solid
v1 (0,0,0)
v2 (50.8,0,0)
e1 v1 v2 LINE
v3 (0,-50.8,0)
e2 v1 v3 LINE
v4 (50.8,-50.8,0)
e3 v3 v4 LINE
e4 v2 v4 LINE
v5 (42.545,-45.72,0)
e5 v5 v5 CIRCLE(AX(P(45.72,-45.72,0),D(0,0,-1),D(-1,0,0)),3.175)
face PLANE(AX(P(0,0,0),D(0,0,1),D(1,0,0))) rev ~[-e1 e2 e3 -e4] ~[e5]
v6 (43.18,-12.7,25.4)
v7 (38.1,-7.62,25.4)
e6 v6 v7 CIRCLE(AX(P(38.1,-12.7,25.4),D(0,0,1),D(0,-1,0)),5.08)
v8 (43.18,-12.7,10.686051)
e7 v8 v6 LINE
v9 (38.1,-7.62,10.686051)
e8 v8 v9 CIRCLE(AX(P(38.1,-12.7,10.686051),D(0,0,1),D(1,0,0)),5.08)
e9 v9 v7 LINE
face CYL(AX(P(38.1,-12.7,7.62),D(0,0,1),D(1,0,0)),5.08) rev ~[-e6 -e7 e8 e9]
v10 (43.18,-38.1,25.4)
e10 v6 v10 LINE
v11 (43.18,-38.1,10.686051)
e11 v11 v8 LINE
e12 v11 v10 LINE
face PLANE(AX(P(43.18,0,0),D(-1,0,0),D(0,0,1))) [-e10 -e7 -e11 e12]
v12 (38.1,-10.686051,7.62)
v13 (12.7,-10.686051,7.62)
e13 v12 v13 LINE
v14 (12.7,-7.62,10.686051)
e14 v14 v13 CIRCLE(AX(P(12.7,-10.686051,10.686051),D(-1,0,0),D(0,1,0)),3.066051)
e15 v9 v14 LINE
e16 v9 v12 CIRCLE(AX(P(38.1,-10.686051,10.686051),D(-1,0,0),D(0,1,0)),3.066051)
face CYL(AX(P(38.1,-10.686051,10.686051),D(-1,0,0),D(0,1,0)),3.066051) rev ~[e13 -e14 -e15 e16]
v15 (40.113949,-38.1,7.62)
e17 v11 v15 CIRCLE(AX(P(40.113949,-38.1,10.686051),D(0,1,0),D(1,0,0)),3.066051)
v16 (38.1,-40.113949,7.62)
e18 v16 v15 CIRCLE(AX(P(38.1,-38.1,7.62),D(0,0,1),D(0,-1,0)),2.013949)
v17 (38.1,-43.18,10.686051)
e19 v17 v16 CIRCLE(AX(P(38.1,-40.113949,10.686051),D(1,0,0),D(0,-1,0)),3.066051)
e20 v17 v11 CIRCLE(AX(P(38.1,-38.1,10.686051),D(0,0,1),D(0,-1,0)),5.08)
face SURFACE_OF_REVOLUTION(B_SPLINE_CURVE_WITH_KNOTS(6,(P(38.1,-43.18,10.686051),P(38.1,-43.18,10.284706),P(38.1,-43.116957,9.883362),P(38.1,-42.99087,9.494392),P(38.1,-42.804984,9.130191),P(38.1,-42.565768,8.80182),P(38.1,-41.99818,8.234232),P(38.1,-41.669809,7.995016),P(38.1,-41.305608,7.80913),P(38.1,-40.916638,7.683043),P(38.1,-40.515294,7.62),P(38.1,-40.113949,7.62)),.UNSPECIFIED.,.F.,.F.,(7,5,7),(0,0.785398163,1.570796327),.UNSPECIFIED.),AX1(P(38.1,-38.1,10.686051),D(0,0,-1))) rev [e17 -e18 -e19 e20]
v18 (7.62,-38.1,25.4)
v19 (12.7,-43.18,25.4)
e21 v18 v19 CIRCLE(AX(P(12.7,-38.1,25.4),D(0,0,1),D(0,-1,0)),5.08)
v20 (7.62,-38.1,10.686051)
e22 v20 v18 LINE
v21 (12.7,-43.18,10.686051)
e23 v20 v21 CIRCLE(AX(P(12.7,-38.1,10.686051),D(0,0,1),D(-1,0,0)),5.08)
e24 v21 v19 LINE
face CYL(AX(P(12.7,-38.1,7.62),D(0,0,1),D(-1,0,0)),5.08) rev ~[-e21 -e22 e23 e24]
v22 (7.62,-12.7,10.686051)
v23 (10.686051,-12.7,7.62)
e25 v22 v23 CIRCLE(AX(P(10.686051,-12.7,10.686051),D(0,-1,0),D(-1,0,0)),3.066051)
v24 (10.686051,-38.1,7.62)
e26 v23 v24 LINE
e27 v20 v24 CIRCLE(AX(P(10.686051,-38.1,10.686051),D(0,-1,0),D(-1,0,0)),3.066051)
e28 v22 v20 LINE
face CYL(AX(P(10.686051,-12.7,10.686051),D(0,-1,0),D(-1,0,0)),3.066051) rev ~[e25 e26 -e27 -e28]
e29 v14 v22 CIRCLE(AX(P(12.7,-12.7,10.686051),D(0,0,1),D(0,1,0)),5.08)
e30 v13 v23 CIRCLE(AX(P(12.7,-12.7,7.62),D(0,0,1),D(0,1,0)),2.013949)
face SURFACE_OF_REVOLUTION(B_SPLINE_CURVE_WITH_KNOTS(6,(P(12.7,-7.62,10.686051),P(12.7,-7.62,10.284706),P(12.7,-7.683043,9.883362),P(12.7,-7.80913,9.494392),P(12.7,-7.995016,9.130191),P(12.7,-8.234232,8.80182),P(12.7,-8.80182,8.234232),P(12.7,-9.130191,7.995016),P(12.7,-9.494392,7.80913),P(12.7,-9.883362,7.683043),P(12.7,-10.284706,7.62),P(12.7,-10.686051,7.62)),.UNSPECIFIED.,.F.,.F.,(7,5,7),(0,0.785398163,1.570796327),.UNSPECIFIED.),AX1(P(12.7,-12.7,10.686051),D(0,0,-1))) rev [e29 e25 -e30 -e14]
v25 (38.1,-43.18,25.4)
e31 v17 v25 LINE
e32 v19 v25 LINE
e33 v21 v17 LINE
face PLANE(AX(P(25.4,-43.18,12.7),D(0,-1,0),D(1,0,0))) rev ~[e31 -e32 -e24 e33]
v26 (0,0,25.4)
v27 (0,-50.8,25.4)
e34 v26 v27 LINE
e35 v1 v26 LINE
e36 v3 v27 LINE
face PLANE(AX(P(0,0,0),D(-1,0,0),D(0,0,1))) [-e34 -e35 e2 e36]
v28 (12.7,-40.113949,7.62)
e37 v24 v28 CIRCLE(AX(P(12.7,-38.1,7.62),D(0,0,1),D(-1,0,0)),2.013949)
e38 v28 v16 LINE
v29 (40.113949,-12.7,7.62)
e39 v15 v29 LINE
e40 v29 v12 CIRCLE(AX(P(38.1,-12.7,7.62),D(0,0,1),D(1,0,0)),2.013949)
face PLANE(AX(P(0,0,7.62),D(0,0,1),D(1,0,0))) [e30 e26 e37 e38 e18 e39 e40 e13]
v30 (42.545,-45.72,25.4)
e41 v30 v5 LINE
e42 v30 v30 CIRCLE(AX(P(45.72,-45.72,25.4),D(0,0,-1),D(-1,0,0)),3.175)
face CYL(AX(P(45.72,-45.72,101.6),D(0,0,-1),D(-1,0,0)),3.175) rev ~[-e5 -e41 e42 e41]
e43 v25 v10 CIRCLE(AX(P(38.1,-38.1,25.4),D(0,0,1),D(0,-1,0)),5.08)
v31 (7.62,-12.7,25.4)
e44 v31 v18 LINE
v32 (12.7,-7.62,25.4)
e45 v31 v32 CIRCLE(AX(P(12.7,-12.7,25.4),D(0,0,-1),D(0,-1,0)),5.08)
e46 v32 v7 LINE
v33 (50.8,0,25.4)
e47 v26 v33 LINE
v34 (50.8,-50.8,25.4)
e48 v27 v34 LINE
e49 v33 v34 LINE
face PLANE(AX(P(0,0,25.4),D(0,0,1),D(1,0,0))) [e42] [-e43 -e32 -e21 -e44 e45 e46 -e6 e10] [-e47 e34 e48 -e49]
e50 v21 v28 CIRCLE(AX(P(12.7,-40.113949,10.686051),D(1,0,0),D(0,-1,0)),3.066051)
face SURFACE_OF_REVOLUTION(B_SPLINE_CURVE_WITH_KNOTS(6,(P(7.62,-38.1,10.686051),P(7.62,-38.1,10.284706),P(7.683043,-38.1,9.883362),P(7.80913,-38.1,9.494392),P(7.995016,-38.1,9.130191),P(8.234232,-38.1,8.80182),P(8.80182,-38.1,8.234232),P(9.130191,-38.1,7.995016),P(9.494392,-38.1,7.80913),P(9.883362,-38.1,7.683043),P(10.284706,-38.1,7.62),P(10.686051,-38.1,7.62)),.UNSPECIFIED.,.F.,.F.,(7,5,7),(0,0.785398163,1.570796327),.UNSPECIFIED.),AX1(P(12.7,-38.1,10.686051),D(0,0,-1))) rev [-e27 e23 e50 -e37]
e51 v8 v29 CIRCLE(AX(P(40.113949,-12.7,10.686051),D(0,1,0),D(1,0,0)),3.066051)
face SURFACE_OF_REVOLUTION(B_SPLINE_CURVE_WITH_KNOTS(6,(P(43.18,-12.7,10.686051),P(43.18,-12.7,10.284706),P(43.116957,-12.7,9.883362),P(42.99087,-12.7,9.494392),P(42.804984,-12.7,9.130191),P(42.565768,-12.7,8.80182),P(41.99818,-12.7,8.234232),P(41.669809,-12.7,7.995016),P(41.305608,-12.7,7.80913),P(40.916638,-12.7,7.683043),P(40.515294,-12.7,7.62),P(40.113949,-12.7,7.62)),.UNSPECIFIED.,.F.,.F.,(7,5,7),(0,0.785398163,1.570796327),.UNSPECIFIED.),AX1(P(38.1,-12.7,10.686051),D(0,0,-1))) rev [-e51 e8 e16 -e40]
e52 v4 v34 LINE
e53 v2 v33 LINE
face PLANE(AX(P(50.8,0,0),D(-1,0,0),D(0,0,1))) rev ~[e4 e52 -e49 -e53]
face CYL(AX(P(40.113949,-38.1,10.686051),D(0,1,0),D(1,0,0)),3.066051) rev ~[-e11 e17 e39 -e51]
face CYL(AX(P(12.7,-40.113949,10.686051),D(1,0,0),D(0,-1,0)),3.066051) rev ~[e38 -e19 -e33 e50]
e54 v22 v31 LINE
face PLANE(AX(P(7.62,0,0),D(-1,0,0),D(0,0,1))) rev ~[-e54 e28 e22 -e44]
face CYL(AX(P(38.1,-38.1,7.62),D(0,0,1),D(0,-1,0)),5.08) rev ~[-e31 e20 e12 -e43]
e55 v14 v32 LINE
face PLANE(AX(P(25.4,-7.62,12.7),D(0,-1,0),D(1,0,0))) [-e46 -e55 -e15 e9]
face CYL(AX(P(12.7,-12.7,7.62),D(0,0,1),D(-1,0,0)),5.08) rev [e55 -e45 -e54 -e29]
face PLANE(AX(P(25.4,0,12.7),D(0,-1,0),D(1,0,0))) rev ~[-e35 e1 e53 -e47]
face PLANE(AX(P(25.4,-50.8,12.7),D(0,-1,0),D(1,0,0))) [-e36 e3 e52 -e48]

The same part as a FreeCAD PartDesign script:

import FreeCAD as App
import Part
import Sketcher
from FreeCAD import Vector
Q = App.Units.Quantity


def edges_at(feature, points):
    """Names of the edges that pass closest to the given points."""
    edges = feature.Shape.Edges
    near = lambda p: min(range(len(edges)), key=lambda i: edges[i].distToShape(Part.Vertex(*p))[0])
    return sorted({f"Edge{near(p) + 1}" for p in points})


def faces_at(feature, points):
    """Names of the faces that lie closest to the given points."""
    faces = feature.Shape.Faces
    near = lambda p: min(range(len(faces)), key=lambda i: faces[i].distToShape(Part.Vertex(*p))[0])
    return sorted({f"Face{near(p) + 1}" for p in points})

doc = App.newDocument("Part")
body = doc.addObject("PartDesign::Body", "Body")

# Sketch on XZ plane
sketch1 = body.newObject("Sketcher::SketchObject", "Sketch")
sketch1.AttachmentSupport = (doc.getObject("XZ_Plane"), [""])
sketch1.MapMode = "FlatFace"
sketch1.addGeometry([
    Part.LineSegment(Vector(0, 25.4, 0), Vector(0, 0, 0)),
    Part.LineSegment(Vector(0, 0, 0), Vector(50.8, 0, 0)),
    Part.LineSegment(Vector(50.8, 0, 0), Vector(50.8, 25.4, 0)),
    Part.LineSegment(Vector(50.8, 25.4, 0), Vector(0, 25.4, 0)),
], False)
sketch1.addConstraint([
    Sketcher.Constraint("Coincident", 0, 2, 1, 1),
    Sketcher.Constraint("Coincident", 1, 2, 2, 1),
    Sketcher.Constraint("Coincident", 2, 2, 3, 1),
    Sketcher.Constraint("Coincident", 3, 2, 0, 1),
    Sketcher.Constraint("Vertical", 0),
    Sketcher.Constraint("Horizontal", 1),
    Sketcher.Constraint("Vertical", 2),
    Sketcher.Constraint("Horizontal", 3),
    Sketcher.Constraint("Coincident", 0, 2, -1, 1),
    Sketcher.Constraint("DistanceX", 1, 1, 1, 2, Q("2 in")),
    Sketcher.Constraint("DistanceY", 0, 2, 0, 1, Q("1 in")),
])
pad1 = body.newObject("PartDesign::Pad", "Pad")
pad1.Profile = sketch1
pad1.Length = Q("2 in")
doc.recompute()

thickness = body.newObject("PartDesign::Thickness", "Thickness")
thickness.Base = (pad1, faces_at(pad1, [(25.4, -25.4, 25.4)]))
thickness.Value = Q("0.3 in")
thickness.Reversed = True
thickness.Join = "Arc"
doc.recompute()

fillet = body.newObject("PartDesign::Fillet", "Fillet")
fillet.Base = (thickness, edges_at(thickness, [(7.62, -7.62, 16.51)]))
fillet.Radius = Q("0.2 in")
doc.recompute()

fillet2 = body.newObject("PartDesign::Fillet", "Fillet001")
fillet2.Base = (fillet, edges_at(fillet, [(7.62, -43.18, 16.51)]))
fillet2.Radius = Q("0.2 in")
doc.recompute()

fillet3 = body.newObject("PartDesign::Fillet", "Fillet002")
fillet3.Base = (fillet2, edges_at(fillet2, [(43.18, -43.18, 16.51)]))
fillet3.Radius = Q("0.2 in")
doc.recompute()

fillet4 = body.newObject("PartDesign::Fillet", "Fillet003")
fillet4.Base = (fillet3, edges_at(fillet3, [(43.18, -7.62, 16.51)]))
fillet4.Radius = Q("0.2 in")

# Sketch on XY plane
sketch2 = body.newObject("Sketcher::SketchObject", "Sketch001")
sketch2.AttachmentSupport = (doc.getObject("XY_Plane"), [""])
sketch2.MapMode = "FlatFace"
sketch2.AttachmentOffset = App.Placement(Vector(0, 0, 1 * 25.4), App.Rotation())
sketch2.addGeometry(Part.Circle(Vector(45.72, -45.72, 0), Vector(0, 0, 1), 3.175), False)
sketch2.addConstraint([
    Sketcher.Constraint("Diameter", 0, Q("0.25 in")),
    Sketcher.Constraint("DistanceX", -1, 1, 0, 3, Q("1.8 in")),
    Sketcher.Constraint("DistanceY", 0, 3, -1, 1, Q("1.8 in")),
])
doc.recompute()
hole = body.newObject("PartDesign::Hole", "Hole")
hole.Profile = sketch2
hole.ThreadType = "None"
hole.Diameter = Q("0.25 in")
hole.DepthType = "ThroughAll"
doc.recompute()

fillet5 = body.newObject("PartDesign::Fillet", "Fillet004")
fillet5.Base = (hole, edges_at(hole, [(25.4, -7.62, 7.62)]))
fillet5.Radius = 3.066051

doc.recompute()
